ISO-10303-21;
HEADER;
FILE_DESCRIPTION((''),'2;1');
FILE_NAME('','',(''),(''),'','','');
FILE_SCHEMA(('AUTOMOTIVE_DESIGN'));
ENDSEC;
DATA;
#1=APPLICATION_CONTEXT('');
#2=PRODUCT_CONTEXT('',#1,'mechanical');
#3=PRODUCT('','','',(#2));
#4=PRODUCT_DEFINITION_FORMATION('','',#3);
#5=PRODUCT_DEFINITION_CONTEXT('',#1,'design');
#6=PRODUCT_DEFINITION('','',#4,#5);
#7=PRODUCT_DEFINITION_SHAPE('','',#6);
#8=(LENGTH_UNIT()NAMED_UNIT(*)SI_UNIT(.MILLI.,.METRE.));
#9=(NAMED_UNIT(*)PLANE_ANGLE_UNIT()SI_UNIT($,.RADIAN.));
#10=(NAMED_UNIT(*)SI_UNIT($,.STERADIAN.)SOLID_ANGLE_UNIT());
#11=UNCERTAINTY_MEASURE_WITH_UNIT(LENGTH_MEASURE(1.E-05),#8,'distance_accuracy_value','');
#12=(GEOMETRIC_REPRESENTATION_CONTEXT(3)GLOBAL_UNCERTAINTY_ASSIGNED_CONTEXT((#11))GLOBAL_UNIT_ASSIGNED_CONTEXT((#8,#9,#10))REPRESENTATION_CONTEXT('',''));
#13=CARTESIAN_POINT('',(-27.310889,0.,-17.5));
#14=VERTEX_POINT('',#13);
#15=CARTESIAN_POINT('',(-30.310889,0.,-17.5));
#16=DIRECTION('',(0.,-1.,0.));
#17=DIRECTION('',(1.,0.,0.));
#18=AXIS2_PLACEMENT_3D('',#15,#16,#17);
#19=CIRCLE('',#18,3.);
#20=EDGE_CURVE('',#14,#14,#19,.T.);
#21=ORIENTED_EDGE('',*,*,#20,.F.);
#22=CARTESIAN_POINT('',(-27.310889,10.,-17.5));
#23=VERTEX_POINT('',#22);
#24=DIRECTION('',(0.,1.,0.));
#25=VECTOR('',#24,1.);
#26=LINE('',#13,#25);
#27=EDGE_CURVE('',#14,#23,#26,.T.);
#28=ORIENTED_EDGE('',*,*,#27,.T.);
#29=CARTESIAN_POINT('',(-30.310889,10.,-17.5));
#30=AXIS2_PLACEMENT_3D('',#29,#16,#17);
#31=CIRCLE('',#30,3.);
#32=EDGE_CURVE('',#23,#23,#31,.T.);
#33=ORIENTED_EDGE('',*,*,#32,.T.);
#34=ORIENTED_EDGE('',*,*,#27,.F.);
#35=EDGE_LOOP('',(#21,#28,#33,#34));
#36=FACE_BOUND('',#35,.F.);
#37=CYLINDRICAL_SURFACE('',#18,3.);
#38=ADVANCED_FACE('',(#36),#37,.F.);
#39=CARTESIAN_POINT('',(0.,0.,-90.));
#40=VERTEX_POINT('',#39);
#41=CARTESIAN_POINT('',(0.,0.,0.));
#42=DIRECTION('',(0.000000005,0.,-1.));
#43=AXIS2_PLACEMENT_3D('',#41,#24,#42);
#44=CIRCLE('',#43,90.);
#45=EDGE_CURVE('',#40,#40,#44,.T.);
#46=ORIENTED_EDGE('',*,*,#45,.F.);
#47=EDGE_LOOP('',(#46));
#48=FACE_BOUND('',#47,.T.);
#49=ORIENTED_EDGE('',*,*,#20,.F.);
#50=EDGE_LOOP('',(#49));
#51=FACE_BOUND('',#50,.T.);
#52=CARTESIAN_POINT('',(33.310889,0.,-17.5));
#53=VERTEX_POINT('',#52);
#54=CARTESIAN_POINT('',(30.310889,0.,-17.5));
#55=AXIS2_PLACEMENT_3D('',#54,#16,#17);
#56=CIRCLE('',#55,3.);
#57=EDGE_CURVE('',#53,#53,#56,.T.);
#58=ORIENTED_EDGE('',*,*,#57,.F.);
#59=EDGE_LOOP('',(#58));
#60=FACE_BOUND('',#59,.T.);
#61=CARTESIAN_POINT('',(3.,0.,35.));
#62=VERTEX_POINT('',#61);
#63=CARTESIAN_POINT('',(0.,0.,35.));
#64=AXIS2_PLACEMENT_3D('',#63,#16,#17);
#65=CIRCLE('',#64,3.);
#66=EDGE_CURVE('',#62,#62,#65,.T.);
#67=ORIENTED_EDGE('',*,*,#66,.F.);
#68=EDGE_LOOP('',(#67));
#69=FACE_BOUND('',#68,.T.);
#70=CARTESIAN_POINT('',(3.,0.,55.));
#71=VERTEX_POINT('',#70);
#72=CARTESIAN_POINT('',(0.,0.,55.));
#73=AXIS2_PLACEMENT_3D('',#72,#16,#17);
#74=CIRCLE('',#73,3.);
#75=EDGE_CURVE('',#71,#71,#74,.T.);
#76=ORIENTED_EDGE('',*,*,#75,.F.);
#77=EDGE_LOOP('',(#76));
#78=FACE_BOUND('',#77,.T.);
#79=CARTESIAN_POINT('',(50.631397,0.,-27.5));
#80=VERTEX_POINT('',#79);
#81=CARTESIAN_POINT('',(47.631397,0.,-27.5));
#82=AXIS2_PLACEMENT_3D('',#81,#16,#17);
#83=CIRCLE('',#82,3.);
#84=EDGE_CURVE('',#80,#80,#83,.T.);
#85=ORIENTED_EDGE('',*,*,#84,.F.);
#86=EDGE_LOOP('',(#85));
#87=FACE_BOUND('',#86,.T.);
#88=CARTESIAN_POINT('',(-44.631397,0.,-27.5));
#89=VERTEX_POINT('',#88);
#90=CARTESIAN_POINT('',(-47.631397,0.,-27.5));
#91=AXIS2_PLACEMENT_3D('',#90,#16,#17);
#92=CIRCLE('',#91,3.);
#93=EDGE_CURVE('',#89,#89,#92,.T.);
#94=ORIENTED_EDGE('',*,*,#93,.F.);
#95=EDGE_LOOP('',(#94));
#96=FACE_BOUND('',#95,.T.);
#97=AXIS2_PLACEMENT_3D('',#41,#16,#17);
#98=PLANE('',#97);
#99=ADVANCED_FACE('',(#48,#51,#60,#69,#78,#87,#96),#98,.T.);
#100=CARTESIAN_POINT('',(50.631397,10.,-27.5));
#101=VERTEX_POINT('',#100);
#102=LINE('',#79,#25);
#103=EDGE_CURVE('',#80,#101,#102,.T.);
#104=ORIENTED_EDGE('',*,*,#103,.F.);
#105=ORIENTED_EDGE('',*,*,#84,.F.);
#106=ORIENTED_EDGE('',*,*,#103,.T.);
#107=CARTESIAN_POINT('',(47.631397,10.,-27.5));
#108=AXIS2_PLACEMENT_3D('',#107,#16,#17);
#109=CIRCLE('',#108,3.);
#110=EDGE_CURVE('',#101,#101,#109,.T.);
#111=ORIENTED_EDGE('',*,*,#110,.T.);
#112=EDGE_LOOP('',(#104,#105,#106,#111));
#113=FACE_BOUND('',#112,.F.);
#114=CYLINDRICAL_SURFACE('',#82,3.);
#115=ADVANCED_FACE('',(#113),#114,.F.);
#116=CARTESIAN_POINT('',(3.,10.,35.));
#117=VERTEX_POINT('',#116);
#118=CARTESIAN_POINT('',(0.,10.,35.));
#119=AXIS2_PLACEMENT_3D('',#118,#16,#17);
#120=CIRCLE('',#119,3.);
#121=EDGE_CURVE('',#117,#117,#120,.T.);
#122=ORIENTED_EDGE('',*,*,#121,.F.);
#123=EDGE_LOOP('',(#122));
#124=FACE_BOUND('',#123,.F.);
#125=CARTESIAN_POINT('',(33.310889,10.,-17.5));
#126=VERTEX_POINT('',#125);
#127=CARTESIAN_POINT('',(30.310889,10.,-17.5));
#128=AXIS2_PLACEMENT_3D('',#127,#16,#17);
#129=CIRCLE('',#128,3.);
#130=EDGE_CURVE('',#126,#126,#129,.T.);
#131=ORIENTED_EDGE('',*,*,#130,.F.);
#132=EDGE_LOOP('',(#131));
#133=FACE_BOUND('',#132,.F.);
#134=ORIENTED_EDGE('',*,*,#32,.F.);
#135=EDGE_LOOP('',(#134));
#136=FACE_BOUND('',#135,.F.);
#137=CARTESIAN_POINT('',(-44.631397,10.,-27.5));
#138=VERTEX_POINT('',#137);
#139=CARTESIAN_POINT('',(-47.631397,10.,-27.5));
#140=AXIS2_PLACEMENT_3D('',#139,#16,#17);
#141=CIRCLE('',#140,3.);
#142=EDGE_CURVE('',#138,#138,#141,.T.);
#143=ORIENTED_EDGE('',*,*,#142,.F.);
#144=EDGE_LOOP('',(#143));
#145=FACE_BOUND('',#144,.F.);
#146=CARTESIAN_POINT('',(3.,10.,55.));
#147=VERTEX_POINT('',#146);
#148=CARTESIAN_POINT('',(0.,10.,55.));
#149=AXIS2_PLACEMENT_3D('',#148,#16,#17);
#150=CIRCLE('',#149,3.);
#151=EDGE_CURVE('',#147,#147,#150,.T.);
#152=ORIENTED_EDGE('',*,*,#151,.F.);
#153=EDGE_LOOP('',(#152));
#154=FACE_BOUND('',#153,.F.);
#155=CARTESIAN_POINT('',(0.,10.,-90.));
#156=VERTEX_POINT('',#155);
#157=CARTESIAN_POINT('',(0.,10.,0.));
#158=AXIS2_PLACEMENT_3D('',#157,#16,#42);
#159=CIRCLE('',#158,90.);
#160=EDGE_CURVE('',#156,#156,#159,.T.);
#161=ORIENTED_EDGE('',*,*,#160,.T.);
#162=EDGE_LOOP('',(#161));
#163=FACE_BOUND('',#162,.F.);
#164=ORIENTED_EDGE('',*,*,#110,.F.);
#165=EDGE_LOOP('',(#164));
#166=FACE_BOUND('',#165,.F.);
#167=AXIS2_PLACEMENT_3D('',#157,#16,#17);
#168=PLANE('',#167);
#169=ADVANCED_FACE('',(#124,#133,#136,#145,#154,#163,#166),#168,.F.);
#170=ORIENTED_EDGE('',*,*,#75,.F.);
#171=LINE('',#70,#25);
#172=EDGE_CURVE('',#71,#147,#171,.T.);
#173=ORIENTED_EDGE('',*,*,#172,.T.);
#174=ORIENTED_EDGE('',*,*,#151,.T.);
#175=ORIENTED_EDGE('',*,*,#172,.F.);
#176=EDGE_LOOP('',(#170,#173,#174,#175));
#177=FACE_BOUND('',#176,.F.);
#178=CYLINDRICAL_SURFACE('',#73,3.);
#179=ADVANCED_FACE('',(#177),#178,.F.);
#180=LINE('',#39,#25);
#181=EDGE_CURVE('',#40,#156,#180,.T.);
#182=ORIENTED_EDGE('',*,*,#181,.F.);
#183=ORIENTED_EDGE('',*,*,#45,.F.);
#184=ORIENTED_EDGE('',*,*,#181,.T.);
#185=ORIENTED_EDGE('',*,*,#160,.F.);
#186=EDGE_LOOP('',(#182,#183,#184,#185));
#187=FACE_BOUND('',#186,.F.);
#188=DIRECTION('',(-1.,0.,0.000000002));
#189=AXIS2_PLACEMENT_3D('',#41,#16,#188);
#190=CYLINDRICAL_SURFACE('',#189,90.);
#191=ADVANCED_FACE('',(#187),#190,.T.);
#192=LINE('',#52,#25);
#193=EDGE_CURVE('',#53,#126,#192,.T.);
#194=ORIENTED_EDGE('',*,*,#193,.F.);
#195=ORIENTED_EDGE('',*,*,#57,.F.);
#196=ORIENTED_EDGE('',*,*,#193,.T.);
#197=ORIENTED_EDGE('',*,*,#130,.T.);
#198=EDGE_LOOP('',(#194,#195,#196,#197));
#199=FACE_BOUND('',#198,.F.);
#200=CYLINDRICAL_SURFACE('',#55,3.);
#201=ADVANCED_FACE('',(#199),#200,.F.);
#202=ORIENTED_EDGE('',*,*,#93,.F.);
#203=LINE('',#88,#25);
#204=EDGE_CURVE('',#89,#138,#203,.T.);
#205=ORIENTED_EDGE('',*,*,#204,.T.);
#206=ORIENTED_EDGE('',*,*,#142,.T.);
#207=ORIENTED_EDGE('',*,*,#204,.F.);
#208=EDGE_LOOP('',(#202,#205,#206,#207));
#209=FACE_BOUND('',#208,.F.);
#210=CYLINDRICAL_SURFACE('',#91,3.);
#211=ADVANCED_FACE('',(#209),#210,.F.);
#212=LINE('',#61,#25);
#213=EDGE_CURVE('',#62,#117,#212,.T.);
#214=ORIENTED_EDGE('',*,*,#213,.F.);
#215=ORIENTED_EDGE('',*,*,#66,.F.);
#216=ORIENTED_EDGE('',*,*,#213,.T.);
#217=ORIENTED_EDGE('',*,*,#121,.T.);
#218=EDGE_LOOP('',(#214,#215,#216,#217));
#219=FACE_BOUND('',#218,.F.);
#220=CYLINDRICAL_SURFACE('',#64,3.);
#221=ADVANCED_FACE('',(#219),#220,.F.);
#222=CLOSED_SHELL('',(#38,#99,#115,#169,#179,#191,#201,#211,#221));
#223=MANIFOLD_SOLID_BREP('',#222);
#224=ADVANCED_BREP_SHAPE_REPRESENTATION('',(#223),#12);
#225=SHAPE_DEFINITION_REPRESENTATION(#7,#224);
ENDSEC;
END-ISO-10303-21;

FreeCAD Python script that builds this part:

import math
import FreeCAD as App
import Part
import Sketcher

V = App.Vector


def add_polygon(sketch, points):
    """Adds a closed chain of lines whose ends are joined by coincident constraints."""
    first, n = sketch.GeometryCount, len(points)
    for a, b in zip(points, points[1:] + points[:1]):
        sketch.addGeometry(Part.LineSegment(App.Vector(*a, 0), App.Vector(*b, 0)), False)
    for i in range(n):
        sketch.addConstraint(Sketcher.Constraint("Coincident", first + i, 2, first + (i + 1) % n, 1))

doc = App.newDocument("Part")
body = doc.addObject("PartDesign::Body", "Body")

sketch1 = doc.addObject("Sketcher::SketchObject", "Sketch")
body.addObject(sketch1)
sketch1.AttachmentSupport = (doc.XZ_Plane, [""])
sketch1.MapMode = "FlatFace"
add_polygon(sketch1, [(-90, 90), (-90, -90), (90, -90), (90, 90)])
sketch1.addConstraint(Sketcher.Constraint("Vertical", 0))
sketch1.addConstraint(Sketcher.Constraint("Horizontal", 1))
sketch1.addConstraint(Sketcher.Constraint("Vertical", 2))
sketch1.addConstraint(Sketcher.Constraint("Horizontal", 3))
sketch1.addConstraint(Sketcher.Constraint("Symmetric", 0, 2, 2, 2, -1, 1))
sketch1.addConstraint(Sketcher.Constraint("Equal", 3, 0))
sketch1.addConstraint(Sketcher.Constraint("DistanceX", 1, 1, 1, 2, 180.0))
pad1 = doc.addObject("PartDesign::Pad", "Pad")
body.addObject(pad1)
pad1.Profile = sketch1
pad1.Length = 10
pad1.Reversed = True

sketch2 = doc.addObject("Sketcher::SketchObject", "Sketch001")
body.addObject(sketch2)
sketch2.AttachmentSupport = (doc.XZ_Plane, [""])
sketch2.MapMode = "FlatFace"
sketch2.addGeometry(Part.Circle(V(0, 55, 0), V(0, 0, 1), 3), False)
sketch2.addGeometry(Part.Circle(V(0, 35, 0), V(0, 0, 1), 3), False)
sketch2.addGeometry(Part.Circle(V(-30.3, -17.5, 0), V(0, 0, 1), 3), False)
sketch2.addGeometry(Part.Circle(V(-47.6, -27.5, 0), V(0, 0, 1), 3), False)
sketch2.addGeometry(Part.Circle(V(30.3, -17.5, 0), V(0, 0, 1), 3), False)
sketch2.addGeometry(Part.Circle(V(47.6, -27.5, 0), V(0, 0, 1), 3), False)
sketch2.addConstraint(Sketcher.Constraint("Equal", 0, 1))
sketch2.addConstraint(Sketcher.Constraint("Equal", 1, 2))
sketch2.addConstraint(Sketcher.Constraint("Equal", 2, 3))
sketch2.addConstraint(Sketcher.Constraint("Equal", 3, 4))
sketch2.addConstraint(Sketcher.Constraint("Equal", 4, 5))
sketch2.addConstraint(Sketcher.Constraint("Symmetric", 2, 3, 4, 3, -2))
sketch2.addConstraint(Sketcher.Constraint("Symmetric", 3, 3, 5, 3, -2))
sketch2.addConstraint(Sketcher.Constraint("PointOnObject", 0, 3, -2))
sketch2.addConstraint(Sketcher.Constraint("PointOnObject", 1, 3, -2))
sketch2.addConstraint(Sketcher.Constraint("Diameter", 0, 6.0))
sketch2.addConstraint(Sketcher.Constraint("DistanceY", -1, 1, 0, 3, 55.0))
sketch2.addConstraint(Sketcher.Constraint("DistanceY", -1, 1, 1, 3, 35.0))
sketch2.addConstraint(Sketcher.Constraint("DistanceY", 3, 3, 2, 3, 10.0))
sketch2.addConstraint(Sketcher.Constraint("DistanceY", 2, 3, -1, 1, 17.5))
sketch2.addConstraint(Sketcher.Constraint("DistanceX", 2, 3, -1, 1, 30.310889))
sketch2.addConstraint(Sketcher.Constraint("DistanceX", 3, 3, 2, 3, 17.320508))
pocket1 = doc.addObject("PartDesign::Pocket", "Pocket")
body.addObject(pocket1)
pocket1.Profile = sketch2
pocket1.Type = "ThroughAll"

sketch3 = doc.addObject("Sketcher::SketchObject", "Sketch002")
body.addObject(sketch3)
sketch3.AttachmentSupport = (doc.XZ_Plane, [""])
sketch3.MapMode = "FlatFace"
sketch3.addGeometry(Part.ArcOfCircle(Part.Circle(V(0, 0, 0), V(0, 0, 1), 90), math.radians(90), math.radians(180)), False)
sketch3.addGeometry(Part.LineSegment(V(0, 90, 0), V(-90, 90, 0)), False)
sketch3.addGeometry(Part.LineSegment(V(-90, 90, 0), V(-90, 0, 0)), False)
sketch3.addGeometry(Part.ArcOfCircle(Part.Circle(V(0, 0, 0), V(0, 0, 1), 90), math.radians(0), math.radians(90)), False)
sketch3.addGeometry(Part.LineSegment(V(90, 0, 0), V(90, 90, 0)), False)
sketch3.addGeometry(Part.LineSegment(V(90, 90, 0), V(0, 90, 0)), False)
sketch3.addGeometry(Part.LineSegment(V(90, -90, 0), V(90, 0, 0)), False)
sketch3.addGeometry(Part.ArcOfCircle(Part.Circle(V(0, 0, 0), V(0, 0, 1), 90), math.radians(-90), math.radians(0)), False)
sketch3.addGeometry(Part.LineSegment(V(0, -90, 0), V(90, -90, 0)), False)
sketch3.addGeometry(Part.LineSegment(V(-90, -90, 0), V(0, -90, 0)), False)
sketch3.addGeometry(Part.ArcOfCircle(Part.Circle(V(0, 0, 0), V(0, 0, 1), 90), math.radians(180), math.radians(270)), False)
sketch3.addGeometry(Part.LineSegment(V(-90, 0, 0), V(-90, -90, 0)), False)
sketch3.addConstraint(Sketcher.Constraint("Tangent", 0, 1, 1, 1))
sketch3.addConstraint(Sketcher.Constraint("Coincident", 1, 2, 2, 1))
sketch3.addConstraint(Sketcher.Constraint("Tangent", 2, 2, 0, 2))
sketch3.addConstraint(Sketcher.Constraint("Tangent", 3, 1, 4, 1))
sketch3.addConstraint(Sketcher.Constraint("Coincident", 4, 2, 5, 1))
sketch3.addConstraint(Sketcher.Constraint("Tangent", 5, 2, 3, 2))
sketch3.addConstraint(Sketcher.Constraint("Tangent", 6, 2, 7, 2))
sketch3.addConstraint(Sketcher.Constraint("Tangent", 7, 1, 8, 1))
sketch3.addConstraint(Sketcher.Constraint("Coincident", 8, 2, 6, 1))
sketch3.addConstraint(Sketcher.Constraint("Tangent", 9, 2, 10, 2))
sketch3.addConstraint(Sketcher.Constraint("Tangent", 10, 1, 11, 1))
sketch3.addConstraint(Sketcher.Constraint("Coincident", 11, 2, 9, 1))
sketch3.addConstraint(Sketcher.Constraint("Horizontal", 1))
sketch3.addConstraint(Sketcher.Constraint("Vertical", 2))
sketch3.addConstraint(Sketcher.Constraint("Vertical", 4))
sketch3.addConstraint(Sketcher.Constraint("Horizontal", 5))
sketch3.addConstraint(Sketcher.Constraint("Vertical", 6))
sketch3.addConstraint(Sketcher.Constraint("Horizontal", 8))
sketch3.addConstraint(Sketcher.Constraint("Horizontal", 9))
sketch3.addConstraint(Sketcher.Constraint("Vertical", 11))
sketch3.addConstraint(Sketcher.Constraint("Coincident", 0, 3, -1, 1))
sketch3.addConstraint(Sketcher.Constraint("Coincident", 3, 3, -1, 1))
sketch3.addConstraint(Sketcher.Constraint("Coincident", 7, 3, -1, 1))
sketch3.addConstraint(Sketcher.Constraint("Coincident", 10, 3, -1, 1))
sketch3.addConstraint(Sketcher.Constraint("Equal", 0, 3))
sketch3.addConstraint(Sketcher.Constraint("Equal", 3, 7))
sketch3.addConstraint(Sketcher.Constraint("Equal", 7, 10))
sketch3.addConstraint(Sketcher.Constraint("Radius", 0, 90.0))
pocket2 = doc.addObject("PartDesign::Pocket", "Pocket001")
body.addObject(pocket2)
pocket2.Profile = sketch3
pocket2.Type = "ThroughAll"

doc.recompute()
